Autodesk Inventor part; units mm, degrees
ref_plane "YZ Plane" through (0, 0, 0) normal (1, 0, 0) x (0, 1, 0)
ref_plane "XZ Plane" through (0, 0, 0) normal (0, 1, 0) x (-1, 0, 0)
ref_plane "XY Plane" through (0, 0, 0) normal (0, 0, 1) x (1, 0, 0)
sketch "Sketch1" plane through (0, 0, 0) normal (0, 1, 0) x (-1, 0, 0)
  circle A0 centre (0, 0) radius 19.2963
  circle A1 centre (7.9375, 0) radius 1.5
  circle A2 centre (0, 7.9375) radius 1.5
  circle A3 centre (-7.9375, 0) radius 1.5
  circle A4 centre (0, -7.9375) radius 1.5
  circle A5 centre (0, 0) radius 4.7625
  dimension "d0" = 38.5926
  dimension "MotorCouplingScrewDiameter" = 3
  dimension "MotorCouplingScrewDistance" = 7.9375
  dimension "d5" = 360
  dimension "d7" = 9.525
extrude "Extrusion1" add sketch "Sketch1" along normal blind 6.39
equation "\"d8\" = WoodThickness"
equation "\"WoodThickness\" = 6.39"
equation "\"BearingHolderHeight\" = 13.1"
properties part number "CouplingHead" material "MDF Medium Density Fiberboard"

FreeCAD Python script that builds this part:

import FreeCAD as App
import Part
import Sketcher
from FreeCAD import Vector
Q = App.Units.Quantity

doc = App.newDocument("Part")
body = doc.addObject("PartDesign::Body", "Body")

sketch1 = body.newObject("Sketcher::SketchObject", "Sketch")
sketch1.AttachmentSupport = (doc.getObject("XZ_Plane"), [""])
sketch1.MapMode = "FlatFace"
sketch1.addGeometry([
    Part.Circle(Vector(0, 0, 0), Vector(0, 0, 1), 19.3),
    Part.Circle(Vector(0, -7.9, 0), Vector(0, 0, 1), 1.5),
    Part.Circle(Vector(7.9, 0, 0), Vector(0, 0, 1), 1.5),
    Part.Circle(Vector(0, 0, 0), Vector(0, 0, 1), 4.8),
    Part.Circle(Vector(-7.9, 0, 0), Vector(0, 0, 1), 1.5),
    Part.Circle(Vector(0, 7.9, 0), Vector(0, 0, 1), 1.5),
], False)
sketch1.addConstraint([
    Sketcher.Constraint("Coincident", 0, 3, -1, 1),
    Sketcher.Constraint("Coincident", 3, 3, -1, 1),
    Sketcher.Constraint("Equal", 1, 2),
    Sketcher.Constraint("Equal", 2, 4),
    Sketcher.Constraint("Equal", 4, 5),
    Sketcher.Constraint("Symmetric", 2, 3, 4, 3, -1, 1),
    Sketcher.Constraint("Symmetric", 1, 3, 5, 3, -1, 1),
    Sketcher.Constraint("PointOnObject", 1, 3, -2),
    Sketcher.Constraint("PointOnObject", 2, 3, -1),
    Sketcher.Constraint("Diameter", 3, Q("0.375 in")),
    Sketcher.Constraint("Diameter", 0, Q("1.5194 in")),
    Sketcher.Constraint("Diameter", 1, Q("0.1181 in")),
    Sketcher.Constraint("DistanceY", 1, 3, -1, 1, Q("0.3125 in")),
    Sketcher.Constraint("DistanceX", -1, 1, 2, 3, Q("0.3125 in")),
])
pad1 = body.newObject("PartDesign::Pad", "Pad")
pad1.Profile = sketch1
pad1.Length = 6.39
pad1.Reversed = True

doc.recompute()
